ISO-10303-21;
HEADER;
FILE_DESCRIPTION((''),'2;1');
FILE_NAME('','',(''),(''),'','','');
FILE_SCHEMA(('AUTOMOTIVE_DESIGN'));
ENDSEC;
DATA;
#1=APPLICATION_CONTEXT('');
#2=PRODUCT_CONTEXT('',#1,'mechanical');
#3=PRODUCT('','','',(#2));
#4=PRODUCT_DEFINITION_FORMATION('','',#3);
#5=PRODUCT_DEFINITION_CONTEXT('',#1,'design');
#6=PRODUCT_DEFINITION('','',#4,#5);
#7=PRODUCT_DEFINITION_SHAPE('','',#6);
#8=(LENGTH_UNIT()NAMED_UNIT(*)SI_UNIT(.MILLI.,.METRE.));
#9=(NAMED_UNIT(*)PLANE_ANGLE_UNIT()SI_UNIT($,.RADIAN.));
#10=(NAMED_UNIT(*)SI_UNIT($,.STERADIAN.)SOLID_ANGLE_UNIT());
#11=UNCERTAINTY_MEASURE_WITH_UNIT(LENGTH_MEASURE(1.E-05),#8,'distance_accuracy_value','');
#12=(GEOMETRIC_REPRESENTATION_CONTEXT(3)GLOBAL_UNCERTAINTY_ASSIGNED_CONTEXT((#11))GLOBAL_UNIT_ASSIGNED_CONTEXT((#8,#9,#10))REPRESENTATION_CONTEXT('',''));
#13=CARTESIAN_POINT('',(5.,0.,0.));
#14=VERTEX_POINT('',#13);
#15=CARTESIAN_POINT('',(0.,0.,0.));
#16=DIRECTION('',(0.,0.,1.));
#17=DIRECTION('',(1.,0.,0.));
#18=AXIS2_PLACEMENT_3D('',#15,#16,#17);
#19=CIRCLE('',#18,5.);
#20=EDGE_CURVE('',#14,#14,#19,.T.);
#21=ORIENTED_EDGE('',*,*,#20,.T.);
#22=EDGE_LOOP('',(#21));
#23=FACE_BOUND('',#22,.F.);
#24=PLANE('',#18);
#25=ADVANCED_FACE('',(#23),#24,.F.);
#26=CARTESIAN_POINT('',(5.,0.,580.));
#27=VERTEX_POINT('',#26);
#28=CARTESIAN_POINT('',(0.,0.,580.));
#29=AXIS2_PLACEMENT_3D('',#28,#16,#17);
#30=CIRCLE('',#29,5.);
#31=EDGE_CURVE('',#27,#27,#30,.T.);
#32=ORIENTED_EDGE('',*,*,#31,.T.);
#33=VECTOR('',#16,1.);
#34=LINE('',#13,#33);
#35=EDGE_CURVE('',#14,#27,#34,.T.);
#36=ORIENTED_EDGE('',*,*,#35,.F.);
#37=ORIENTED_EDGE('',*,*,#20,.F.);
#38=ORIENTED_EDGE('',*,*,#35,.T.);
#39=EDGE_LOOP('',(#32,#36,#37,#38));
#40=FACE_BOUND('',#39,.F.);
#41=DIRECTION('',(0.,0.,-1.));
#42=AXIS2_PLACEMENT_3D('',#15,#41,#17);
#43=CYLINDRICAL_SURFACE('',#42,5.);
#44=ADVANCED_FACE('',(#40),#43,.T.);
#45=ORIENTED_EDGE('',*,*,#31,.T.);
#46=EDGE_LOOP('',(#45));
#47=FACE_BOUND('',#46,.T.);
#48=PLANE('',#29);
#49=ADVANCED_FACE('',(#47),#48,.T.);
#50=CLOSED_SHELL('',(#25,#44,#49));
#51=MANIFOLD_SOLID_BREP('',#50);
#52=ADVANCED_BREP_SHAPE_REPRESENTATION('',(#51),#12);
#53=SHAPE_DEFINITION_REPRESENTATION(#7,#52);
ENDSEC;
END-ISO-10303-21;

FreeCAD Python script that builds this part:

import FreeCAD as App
import Part
import Sketcher

V = App.Vector

doc = App.newDocument("Part")
params = doc.addObject("Spreadsheet::Sheet", "Params")
for row, (alias, value) in enumerate([
    ("sketch1_diameter", "10 mm"),
    ("pad1_length", "580 mm"),
], start=1):
    params.set(f"A{row}", alias)
    params.set(f"B{row}", "=" + value)
    params.setAlias(f"B{row}", alias)

body = doc.addObject("PartDesign::Body", "Body")

sketch1 = body.newObject("Sketcher::SketchObject", "Sketch")
sketch1.AttachmentSupport = (doc.getObject("XY_Plane"), [""])
sketch1.MapMode = "FlatFace"
sketch1.addGeometry(Part.Circle(V(0, 0, 0), V(0, 0, 1), 5), False)
sketch1.addConstraint(Sketcher.Constraint("Coincident", 0, 3, -1, 1))
sketch1.addConstraint(Sketcher.Constraint("Diameter", 0, 10.0))
sketch1.setExpression("Constraints[1]", "Params.sketch1_diameter")
pad1 = body.newObject("PartDesign::Pad", "Pad")
pad1.Profile = sketch1
pad1.setExpression("Length", "Params.pad1_length")

doc.recompute()
